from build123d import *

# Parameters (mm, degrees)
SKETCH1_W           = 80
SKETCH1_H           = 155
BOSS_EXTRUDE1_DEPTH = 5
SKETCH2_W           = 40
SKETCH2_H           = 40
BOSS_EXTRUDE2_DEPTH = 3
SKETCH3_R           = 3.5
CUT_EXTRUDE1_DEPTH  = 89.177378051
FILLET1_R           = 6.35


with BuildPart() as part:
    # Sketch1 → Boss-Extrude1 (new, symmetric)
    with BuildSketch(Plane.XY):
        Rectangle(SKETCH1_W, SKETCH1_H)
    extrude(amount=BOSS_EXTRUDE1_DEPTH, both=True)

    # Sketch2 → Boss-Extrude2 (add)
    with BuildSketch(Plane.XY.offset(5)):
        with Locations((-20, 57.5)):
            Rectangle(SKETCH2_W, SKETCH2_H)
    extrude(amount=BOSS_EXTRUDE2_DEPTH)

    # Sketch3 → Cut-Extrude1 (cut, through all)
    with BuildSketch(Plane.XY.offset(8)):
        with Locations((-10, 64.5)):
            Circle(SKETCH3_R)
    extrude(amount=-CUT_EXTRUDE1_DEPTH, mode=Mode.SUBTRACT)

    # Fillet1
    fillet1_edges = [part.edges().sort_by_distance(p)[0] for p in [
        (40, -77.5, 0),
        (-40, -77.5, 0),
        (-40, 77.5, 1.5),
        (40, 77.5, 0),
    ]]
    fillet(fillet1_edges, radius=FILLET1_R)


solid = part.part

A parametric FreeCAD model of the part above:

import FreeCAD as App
import Part
import Sketcher
Q = App.Units.Quantity


def edges_at(feature, points):
    """Names of the edges that pass closest to the given points."""
    edges = feature.Shape.Edges
    near = lambda p: min(range(len(edges)), key=lambda i: edges[i].distToShape(Part.Vertex(*p))[0])
    return sorted({f"Edge{near(p) + 1}" for p in points})

doc = App.newDocument("Part")
body = doc.addObject("PartDesign::Body", "Body")

# Sketch on XY plane
sketch1 = doc.addObject("Sketcher::SketchObject", "Sketch")
body.addObject(sketch1)
sketch1.AttachmentSupport = (doc.XY_Plane, [""])
sketch1.MapMode = "FlatFace"
sketch1.addGeometry(Part.LineSegment(App.Vector(-40, 78, 0), App.Vector(-40, -78, 0)), False)
sketch1.addGeometry(Part.LineSegment(App.Vector(-40, -78, 0), App.Vector(40, -78, 0)), False)
sketch1.addGeometry(Part.LineSegment(App.Vector(40, -78, 0), App.Vector(40, 78, 0)), False)
sketch1.addGeometry(Part.LineSegment(App.Vector(40, 78, 0), App.Vector(-40, 78, 0)), False)
sketch1.addConstraint(Sketcher.Constraint("Coincident", 0, 2, 1, 1))
sketch1.addConstraint(Sketcher.Constraint("Coincident", 1, 2, 2, 1))
sketch1.addConstraint(Sketcher.Constraint("Coincident", 2, 2, 3, 1))
sketch1.addConstraint(Sketcher.Constraint("Coincident", 3, 2, 0, 1))
sketch1.addConstraint(Sketcher.Constraint("Vertical", 0))
sketch1.addConstraint(Sketcher.Constraint("Horizontal", 1))
sketch1.addConstraint(Sketcher.Constraint("Vertical", 2))
sketch1.addConstraint(Sketcher.Constraint("Horizontal", 3))
sketch1.addConstraint(Sketcher.Constraint("Symmetric", 0, 2, 2, 2, -1, 1))
sketch1.addConstraint(Sketcher.Constraint("DistanceX", 1, 1, 1, 2, Q("80 mm")))
sketch1.addConstraint(Sketcher.Constraint("DistanceY", 0, 2, 0, 1, Q("155 mm")))
pad1 = doc.addObject("PartDesign::Pad", "Pad")
body.addObject(pad1)
pad1.Profile = sketch1
pad1.Length = 10
pad1.Midplane = True

# Sketch on XY plane
sketch2 = doc.addObject("Sketcher::SketchObject", "Sketch001")
body.addObject(sketch2)
sketch2.AttachmentSupport = (doc.XY_Plane, [""])
sketch2.MapMode = "FlatFace"
sketch2.AttachmentOffset = App.Placement(App.Vector(0, 0, 5), App.Rotation())
sketch2.addGeometry(Part.LineSegment(App.Vector(-40, 78, 0), App.Vector(-40, 38, 0)), False)
sketch2.addGeometry(Part.LineSegment(App.Vector(-40, 38, 0), App.Vector(0, 38, 0)), False)
sketch2.addGeometry(Part.LineSegment(App.Vector(0, 38, 0), App.Vector(0, 78, 0)), False)
sketch2.addGeometry(Part.LineSegment(App.Vector(0, 78, 0), App.Vector(-40, 78, 0)), False)
sketch2.addConstraint(Sketcher.Constraint("Coincident", 0, 2, 1, 1))
sketch2.addConstraint(Sketcher.Constraint("Coincident", 1, 2, 2, 1))
sketch2.addConstraint(Sketcher.Constraint("Coincident", 2, 2, 3, 1))
sketch2.addConstraint(Sketcher.Constraint("Coincident", 3, 2, 0, 1))
sketch2.addConstraint(Sketcher.Constraint("Vertical", 0))
sketch2.addConstraint(Sketcher.Constraint("Horizontal", 1))
sketch2.addConstraint(Sketcher.Constraint("Vertical", 2))
sketch2.addConstraint(Sketcher.Constraint("Horizontal", 3))
sketch2.addConstraint(Sketcher.Constraint("PointOnObject", 1, 2, -2))
sketch2.addConstraint(Sketcher.Constraint("Equal", 3, 0))
sketch2.addConstraint(Sketcher.Constraint("DistanceX", 1, 1, 1, 2, Q("40 mm")))
sketch2.addConstraint(Sketcher.Constraint("DistanceY", -1, 1, 0, 2, Q("37.5 mm")))
pad2 = doc.addObject("PartDesign::Pad", "Pad001")
body.addObject(pad2)
pad2.Profile = sketch2
pad2.Length = 3

# Sketch on XY plane
sketch3 = doc.addObject("Sketcher::SketchObject", "Sketch002")
body.addObject(sketch3)
sketch3.AttachmentSupport = (doc.XY_Plane, [""])
sketch3.MapMode = "FlatFace"
sketch3.AttachmentOffset = App.Placement(App.Vector(0, 0, 8), App.Rotation())
sketch3.addGeometry(Part.Circle(App.Vector(-10, 64.5, 0), App.Vector(0, 0, 1), 3.5), False)
sketch3.addConstraint(Sketcher.Constraint("Diameter", 0, Q("7 mm")))
sketch3.addConstraint(Sketcher.Constraint("DistanceX", 0, 3, -1, 1, Q("10 mm")))
sketch3.addConstraint(Sketcher.Constraint("DistanceY", -1, 1, 0, 3, Q("64.5 mm")))
pocket1 = doc.addObject("PartDesign::Pocket", "Pocket")
body.addObject(pocket1)
pocket1.Profile = sketch3
pocket1.Type = "ThroughAll"
doc.recompute()

fillet = doc.addObject("PartDesign::Fillet", "Fillet")
body.addObject(fillet)
fillet.Base = (pocket1, edges_at(pocket1, [
    (40, -77.5, 0),
    (-40, -77.5, 0),
    (-40, 77.5, 1.5),
    (40, 77.5, 0),
]))
fillet.Radius = 6.35

doc.recompute()
